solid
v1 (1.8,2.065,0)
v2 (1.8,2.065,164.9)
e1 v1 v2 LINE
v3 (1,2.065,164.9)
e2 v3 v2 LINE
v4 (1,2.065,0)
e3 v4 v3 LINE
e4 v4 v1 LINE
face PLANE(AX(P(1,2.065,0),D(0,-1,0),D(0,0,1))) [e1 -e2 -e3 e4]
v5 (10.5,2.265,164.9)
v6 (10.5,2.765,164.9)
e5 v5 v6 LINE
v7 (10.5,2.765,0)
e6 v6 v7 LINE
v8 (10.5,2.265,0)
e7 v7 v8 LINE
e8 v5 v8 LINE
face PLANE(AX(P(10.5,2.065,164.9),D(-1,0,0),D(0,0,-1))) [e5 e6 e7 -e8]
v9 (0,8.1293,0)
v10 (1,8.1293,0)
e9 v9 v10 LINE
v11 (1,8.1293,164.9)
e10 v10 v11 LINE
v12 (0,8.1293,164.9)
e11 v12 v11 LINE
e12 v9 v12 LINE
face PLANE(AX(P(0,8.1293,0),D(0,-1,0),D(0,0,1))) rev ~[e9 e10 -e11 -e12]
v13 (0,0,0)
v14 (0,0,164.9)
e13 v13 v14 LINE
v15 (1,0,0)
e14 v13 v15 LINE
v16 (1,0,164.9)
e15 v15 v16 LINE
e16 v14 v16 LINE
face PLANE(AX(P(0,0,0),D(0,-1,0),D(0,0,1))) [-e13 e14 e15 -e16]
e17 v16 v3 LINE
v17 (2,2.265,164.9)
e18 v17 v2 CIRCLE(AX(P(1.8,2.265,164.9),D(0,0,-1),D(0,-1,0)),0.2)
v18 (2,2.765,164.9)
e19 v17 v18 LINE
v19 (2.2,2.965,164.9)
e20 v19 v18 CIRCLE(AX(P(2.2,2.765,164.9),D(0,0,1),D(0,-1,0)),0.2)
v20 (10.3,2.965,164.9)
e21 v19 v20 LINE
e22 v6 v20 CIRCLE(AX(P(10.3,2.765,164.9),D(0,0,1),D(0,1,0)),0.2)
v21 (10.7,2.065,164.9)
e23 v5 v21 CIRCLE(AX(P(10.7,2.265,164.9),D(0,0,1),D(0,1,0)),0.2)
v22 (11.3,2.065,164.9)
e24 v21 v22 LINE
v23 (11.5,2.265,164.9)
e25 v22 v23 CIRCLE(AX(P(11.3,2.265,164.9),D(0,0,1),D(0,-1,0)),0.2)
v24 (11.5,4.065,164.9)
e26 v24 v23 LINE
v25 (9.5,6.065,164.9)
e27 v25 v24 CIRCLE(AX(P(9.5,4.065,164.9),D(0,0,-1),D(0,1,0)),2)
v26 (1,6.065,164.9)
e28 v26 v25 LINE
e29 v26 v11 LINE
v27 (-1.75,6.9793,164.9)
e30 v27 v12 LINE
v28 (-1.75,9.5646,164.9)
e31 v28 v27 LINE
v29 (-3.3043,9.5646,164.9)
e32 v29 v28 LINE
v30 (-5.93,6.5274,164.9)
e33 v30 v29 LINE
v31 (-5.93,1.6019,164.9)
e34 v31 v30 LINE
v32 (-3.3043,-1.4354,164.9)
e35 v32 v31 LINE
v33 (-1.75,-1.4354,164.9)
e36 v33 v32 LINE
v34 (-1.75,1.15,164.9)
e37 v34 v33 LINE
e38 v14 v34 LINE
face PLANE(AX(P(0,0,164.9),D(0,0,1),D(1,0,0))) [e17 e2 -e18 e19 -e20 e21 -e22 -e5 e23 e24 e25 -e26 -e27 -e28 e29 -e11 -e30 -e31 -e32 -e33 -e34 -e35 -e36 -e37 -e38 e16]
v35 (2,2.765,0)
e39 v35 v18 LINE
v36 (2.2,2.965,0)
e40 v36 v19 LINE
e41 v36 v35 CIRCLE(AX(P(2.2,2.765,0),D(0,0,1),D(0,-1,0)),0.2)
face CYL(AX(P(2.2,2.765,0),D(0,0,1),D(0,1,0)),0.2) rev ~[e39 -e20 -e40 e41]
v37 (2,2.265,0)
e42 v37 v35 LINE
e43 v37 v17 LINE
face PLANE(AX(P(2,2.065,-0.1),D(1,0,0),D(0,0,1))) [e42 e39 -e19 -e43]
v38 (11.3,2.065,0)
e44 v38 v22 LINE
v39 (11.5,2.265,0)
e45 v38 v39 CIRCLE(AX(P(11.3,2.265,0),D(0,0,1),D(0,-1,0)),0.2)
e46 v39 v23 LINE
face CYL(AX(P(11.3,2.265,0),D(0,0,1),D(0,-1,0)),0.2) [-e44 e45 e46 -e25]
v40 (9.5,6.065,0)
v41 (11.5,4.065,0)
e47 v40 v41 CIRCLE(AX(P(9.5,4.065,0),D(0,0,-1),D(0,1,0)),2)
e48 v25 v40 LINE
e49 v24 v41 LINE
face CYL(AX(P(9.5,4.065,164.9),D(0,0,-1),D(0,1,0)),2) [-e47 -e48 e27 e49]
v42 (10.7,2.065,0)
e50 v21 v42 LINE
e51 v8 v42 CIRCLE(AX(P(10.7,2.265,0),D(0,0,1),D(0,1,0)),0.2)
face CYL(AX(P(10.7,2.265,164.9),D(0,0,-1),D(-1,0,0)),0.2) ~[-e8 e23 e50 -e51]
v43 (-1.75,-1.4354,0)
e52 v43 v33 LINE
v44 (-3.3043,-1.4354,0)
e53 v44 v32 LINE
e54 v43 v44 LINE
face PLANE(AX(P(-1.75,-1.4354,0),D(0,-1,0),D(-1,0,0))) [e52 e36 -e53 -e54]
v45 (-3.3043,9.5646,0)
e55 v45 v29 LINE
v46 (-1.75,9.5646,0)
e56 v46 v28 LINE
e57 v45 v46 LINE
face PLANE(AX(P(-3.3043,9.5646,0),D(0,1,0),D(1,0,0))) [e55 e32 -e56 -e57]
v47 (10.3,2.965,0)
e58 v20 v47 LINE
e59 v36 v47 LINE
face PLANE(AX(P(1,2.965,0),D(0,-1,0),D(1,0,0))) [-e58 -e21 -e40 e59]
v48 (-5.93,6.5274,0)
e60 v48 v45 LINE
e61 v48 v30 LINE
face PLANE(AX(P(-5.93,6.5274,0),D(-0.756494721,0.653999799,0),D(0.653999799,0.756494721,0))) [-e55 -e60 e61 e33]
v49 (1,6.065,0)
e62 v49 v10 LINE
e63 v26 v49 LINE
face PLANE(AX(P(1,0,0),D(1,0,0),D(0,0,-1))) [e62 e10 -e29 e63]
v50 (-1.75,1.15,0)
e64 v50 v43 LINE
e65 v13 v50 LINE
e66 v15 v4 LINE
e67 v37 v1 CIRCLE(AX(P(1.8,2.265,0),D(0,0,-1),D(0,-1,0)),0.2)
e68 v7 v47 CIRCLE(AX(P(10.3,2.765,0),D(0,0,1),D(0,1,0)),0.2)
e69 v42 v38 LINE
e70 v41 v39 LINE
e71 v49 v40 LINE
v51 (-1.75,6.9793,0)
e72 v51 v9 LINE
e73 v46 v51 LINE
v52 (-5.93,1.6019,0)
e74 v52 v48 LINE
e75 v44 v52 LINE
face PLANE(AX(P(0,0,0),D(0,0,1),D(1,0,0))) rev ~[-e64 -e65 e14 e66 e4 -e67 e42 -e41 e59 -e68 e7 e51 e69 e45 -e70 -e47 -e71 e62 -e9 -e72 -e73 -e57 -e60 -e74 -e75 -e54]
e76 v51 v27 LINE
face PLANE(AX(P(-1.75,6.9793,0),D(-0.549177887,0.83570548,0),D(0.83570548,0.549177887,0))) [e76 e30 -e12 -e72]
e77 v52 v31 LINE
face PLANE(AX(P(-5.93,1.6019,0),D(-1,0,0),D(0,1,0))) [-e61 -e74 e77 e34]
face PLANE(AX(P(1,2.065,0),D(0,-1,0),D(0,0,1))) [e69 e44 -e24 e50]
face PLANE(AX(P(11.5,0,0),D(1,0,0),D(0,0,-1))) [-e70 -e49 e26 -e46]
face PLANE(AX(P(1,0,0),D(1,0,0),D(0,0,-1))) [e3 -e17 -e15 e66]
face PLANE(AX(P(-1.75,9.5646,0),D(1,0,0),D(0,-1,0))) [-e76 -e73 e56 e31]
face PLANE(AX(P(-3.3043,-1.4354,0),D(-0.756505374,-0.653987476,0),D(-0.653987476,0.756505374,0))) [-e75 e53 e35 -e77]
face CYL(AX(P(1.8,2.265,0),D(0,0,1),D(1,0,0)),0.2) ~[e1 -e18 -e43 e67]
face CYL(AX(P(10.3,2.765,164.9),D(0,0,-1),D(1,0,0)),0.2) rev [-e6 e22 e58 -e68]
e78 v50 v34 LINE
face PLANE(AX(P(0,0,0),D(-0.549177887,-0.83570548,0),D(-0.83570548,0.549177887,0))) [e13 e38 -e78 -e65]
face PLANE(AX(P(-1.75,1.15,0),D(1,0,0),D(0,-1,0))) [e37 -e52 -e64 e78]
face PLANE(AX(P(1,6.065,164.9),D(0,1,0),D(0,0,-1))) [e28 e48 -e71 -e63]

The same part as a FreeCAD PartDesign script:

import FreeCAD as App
import Part
import Sketcher

V = App.Vector
Q = App.Units.Quantity


def edges_at(feature, points):
    """Names of the edges that pass closest to the given points."""
    edges = feature.Shape.Edges
    near = lambda p: min(range(len(edges)), key=lambda i: edges[i].distToShape(Part.Vertex(*p))[0])
    return sorted({f"Edge{near(p) + 1}" for p in points})

doc = App.newDocument("Part")
body = doc.addObject("PartDesign::Body", "Body")

sketch1 = body.newObject("Sketcher::SketchObject", "Sketch")
sketch1.AttachmentSupport = (doc.getObject("XY_Plane"), [""])
sketch1.MapMode = "FlatFace"
sketch1.addGeometry([
    Part.LineSegment(V(-3.3, 9.6, 0), V(-5.9, 6.5, 0)),
    Part.LineSegment(V(-5.9, 6.5, 0), V(-5.9, 1.6, 0)),
    Part.LineSegment(V(-5.9, 1.6, 0), V(-3.3, -1.4, 0)),
    Part.LineSegment(V(-3.3, -1.4, 0), V(-1.8, -1.4, 0)),
    Part.LineSegment(V(-1.8, -1.4, 0), V(-1.8, 1.1, 0)),
    Part.LineSegment(V(-1.8, 1.1, 0), V(0, 0, 0)),
    Part.LineSegment(V(0, 0, 0), V(0, 8.1, 0)),
    Part.LineSegment(V(0, 8.1, 0), V(-1.8, 7, 0)),
    Part.LineSegment(V(-1.8, 7, 0), V(-1.8, 9.6, 0)),
    Part.LineSegment(V(-1.8, 9.6, 0), V(-3.3, 9.6, 0)),
], False)
sketch1.addConstraint([
    Sketcher.Constraint("Coincident", 0, 2, 1, 1),
    Sketcher.Constraint("Coincident", 1, 2, 2, 1),
    Sketcher.Constraint("Coincident", 2, 2, 3, 1),
    Sketcher.Constraint("Coincident", 3, 2, 4, 1),
    Sketcher.Constraint("Coincident", 4, 2, 5, 1),
    Sketcher.Constraint("Coincident", 5, 2, 6, 1),
    Sketcher.Constraint("Coincident", 6, 2, 7, 1),
    Sketcher.Constraint("Coincident", 7, 2, 8, 1),
    Sketcher.Constraint("Coincident", 8, 2, 9, 1),
    Sketcher.Constraint("Coincident", 9, 2, 0, 1),
    Sketcher.Constraint("Vertical", 1),
    Sketcher.Constraint("Horizontal", 3),
    Sketcher.Constraint("Vertical", 4),
    Sketcher.Constraint("Vertical", 6),
    Sketcher.Constraint("Vertical", 8),
    Sketcher.Constraint("Horizontal", 9),
    Sketcher.Constraint("Coincident", 5, 2, -1, 1),
    Sketcher.Constraint("Vertical", 4, 2, 7, 2),
    Sketcher.Constraint("Vertical", 2, 2, 9, 2),
    Sketcher.Constraint("Equal", 4, 8),
    Sketcher.Constraint("Equal", 0, 2),
    Sketcher.Constraint("Equal", 5, 7),
    Sketcher.Constraint("Angle", 5, Q("-33.3106 deg")),
    Sketcher.Constraint("DistanceX", 0, 2, -1, 1, 5.93),
    Sketcher.Constraint("DistanceX", 3, 2, -1, 1, 1.75),
    Sketcher.Constraint("Distance", 2, 4.015),
    Sketcher.Constraint("DistanceX", 3, 1, 3, 2, 1.5543),
    Sketcher.Constraint("DistanceY", 1, 2, 1, 1, 4.9255),
    Sketcher.Constraint("DistanceY", 4, 1, 4, 2, 2.5854),
])
pad1 = body.newObject("PartDesign::Pad", "Pad")
pad1.Profile = sketch1
pad1.Length = 164.9

sketch2 = body.newObject("Sketcher::SketchObject", "Sketch001")
sketch2.AttachmentSupport = (doc.getObject("YZ_Plane"), [""])
sketch2.MapMode = "FlatFace"
sketch2.addGeometry([
    Part.LineSegment(V(0, 0, 0), V(8, 0, 0)),
    Part.LineSegment(V(8, 0, 0), V(8, 165, 0)),
    Part.LineSegment(V(8, 165, 0), V(0, 165, 0)),
    Part.LineSegment(V(0, 165, 0), V(0, 0, 0)),
], False)
sketch2.addConstraint([
    Sketcher.Constraint("Coincident", 0, 2, 1, 1),
    Sketcher.Constraint("Coincident", 1, 2, 2, 1),
    Sketcher.Constraint("Coincident", 2, 2, 3, 1),
    Sketcher.Constraint("Coincident", 3, 2, 0, 1),
    Sketcher.Constraint("Horizontal", 0),
    Sketcher.Constraint("Vertical", 1),
    Sketcher.Constraint("Horizontal", 2),
    Sketcher.Constraint("Vertical", 3),
    Sketcher.Constraint("Coincident", 3, 2, -1, 1),
    Sketcher.Constraint("DistanceY", 1, 1, 1, 2, 164.9),
    Sketcher.Constraint("DistanceX", 0, 1, 0, 2, 8.1293),
])
pad2 = body.newObject("PartDesign::Pad", "Pad001")
pad2.Profile = sketch2
pad2.Length = 1

sketch3 = body.newObject("Sketcher::SketchObject", "Sketch002")
sketch3.AttachmentSupport = (doc.getObject("YZ_Plane"), [""])
sketch3.MapMode = "FlatFace"
sketch3.AttachmentOffset = App.Placement(V(0, 0, 1), App.Rotation())
sketch3.addGeometry([
    Part.LineSegment(V(6.1, 0, 0), V(6.1, 164.9, 0)),
    Part.LineSegment(V(6.1, 164.9, 0), V(2.1, 164.9, 0)),
    Part.LineSegment(V(2.1, 164.9, 0), V(2.1, 0, 0)),
    Part.LineSegment(V(2.1, 0, 0), V(6.1, 0, 0)),
], False)
sketch3.addConstraint([
    Sketcher.Constraint("Coincident", 0, 2, 1, 1),
    Sketcher.Constraint("Coincident", 1, 2, 2, 1),
    Sketcher.Constraint("Coincident", 2, 2, 3, 1),
    Sketcher.Constraint("Coincident", 3, 2, 0, 1),
    Sketcher.Constraint("Vertical", 0),
    Sketcher.Constraint("Horizontal", 1),
    Sketcher.Constraint("Vertical", 2),
    Sketcher.Constraint("Horizontal", 3),
    Sketcher.Constraint("PointOnObject", 2, 2, -1),
    Sketcher.Constraint("DistanceX", 1, 2, 1, 1, 4.0),
    Sketcher.Constraint("DistanceY", 0, 1, 0, 2, 164.9),
    Sketcher.Constraint("DistanceX", -1, 1, 0, 2, 6.065),
])
pad3 = body.newObject("PartDesign::Pad", "Pad002")
pad3.Profile = sketch3
pad3.Length = 10.5

sketch4 = body.newObject("Sketcher::SketchObject", "Sketch003")
sketch4.AttachmentSupport = (doc.getObject("XZ_Plane"), [""])
sketch4.MapMode = "FlatFace"
sketch4.AttachmentOffset = App.Placement(V(0, 0, -2.065), App.Rotation())
sketch4.addGeometry([
    Part.LineSegment(V(10, 165, 0), V(2, 165, 0)),
    Part.LineSegment(V(2, 165, 0), V(2, 0, 0)),
    Part.LineSegment(V(2, 0, 0), V(10, 0, 0)),
    Part.LineSegment(V(10, 0, 0), V(10, 165, 0)),
], False)
sketch4.addConstraint([
    Sketcher.Constraint("Coincident", 0, 2, 1, 1),
    Sketcher.Constraint("Coincident", 1, 2, 2, 1),
    Sketcher.Constraint("Coincident", 2, 2, 3, 1),
    Sketcher.Constraint("Coincident", 3, 2, 0, 1),
    Sketcher.Constraint("Horizontal", 0),
    Sketcher.Constraint("Vertical", 1),
    Sketcher.Constraint("Horizontal", 2),
    Sketcher.Constraint("Vertical", 3),
    Sketcher.Constraint("DistanceX", 0, 2, 0, 1, 8.5),
    Sketcher.Constraint("DistanceY", 1, 2, 1, 1, 165.0),
    Sketcher.Constraint("DistanceX", -1, 1, 0, 2, 2.0),
    Sketcher.Constraint("DistanceY", -1, 1, 0, 2, 164.9),
])
pocket1 = body.newObject("PartDesign::Pocket", "Pocket")
pocket1.Profile = sketch4
pocket1.Length = 0.9
doc.recompute()

fillet = body.newObject("PartDesign::Fillet", "Fillet")
fillet.Base = (pocket1, edges_at(pocket1, [(11.5, 6.065, 82.45)]))
fillet.Radius = 2
doc.recompute()

fillet2 = body.newObject("PartDesign::Fillet", "Fillet001")
fillet2.Base = (fillet, edges_at(fillet, [(10.5, 2.965, 82.45)]))
fillet2.Radius = 0.2
doc.recompute()

fillet3 = body.newObject("PartDesign::Fillet", "Fillet002")
fillet3.Base = (fillet2, edges_at(fillet2, [(2, 2.965, 82.45)]))
fillet3.Radius = 0.2
doc.recompute()

fillet4 = body.newObject("PartDesign::Fillet", "Fillet003")
fillet4.Base = (fillet3, edges_at(fillet3, [(11.5, 2.065, 82.45), (10.5, 2.065, 82.45), (2, 2.065, 82.45)]))
fillet4.Radius = 0.2

doc.recompute()
